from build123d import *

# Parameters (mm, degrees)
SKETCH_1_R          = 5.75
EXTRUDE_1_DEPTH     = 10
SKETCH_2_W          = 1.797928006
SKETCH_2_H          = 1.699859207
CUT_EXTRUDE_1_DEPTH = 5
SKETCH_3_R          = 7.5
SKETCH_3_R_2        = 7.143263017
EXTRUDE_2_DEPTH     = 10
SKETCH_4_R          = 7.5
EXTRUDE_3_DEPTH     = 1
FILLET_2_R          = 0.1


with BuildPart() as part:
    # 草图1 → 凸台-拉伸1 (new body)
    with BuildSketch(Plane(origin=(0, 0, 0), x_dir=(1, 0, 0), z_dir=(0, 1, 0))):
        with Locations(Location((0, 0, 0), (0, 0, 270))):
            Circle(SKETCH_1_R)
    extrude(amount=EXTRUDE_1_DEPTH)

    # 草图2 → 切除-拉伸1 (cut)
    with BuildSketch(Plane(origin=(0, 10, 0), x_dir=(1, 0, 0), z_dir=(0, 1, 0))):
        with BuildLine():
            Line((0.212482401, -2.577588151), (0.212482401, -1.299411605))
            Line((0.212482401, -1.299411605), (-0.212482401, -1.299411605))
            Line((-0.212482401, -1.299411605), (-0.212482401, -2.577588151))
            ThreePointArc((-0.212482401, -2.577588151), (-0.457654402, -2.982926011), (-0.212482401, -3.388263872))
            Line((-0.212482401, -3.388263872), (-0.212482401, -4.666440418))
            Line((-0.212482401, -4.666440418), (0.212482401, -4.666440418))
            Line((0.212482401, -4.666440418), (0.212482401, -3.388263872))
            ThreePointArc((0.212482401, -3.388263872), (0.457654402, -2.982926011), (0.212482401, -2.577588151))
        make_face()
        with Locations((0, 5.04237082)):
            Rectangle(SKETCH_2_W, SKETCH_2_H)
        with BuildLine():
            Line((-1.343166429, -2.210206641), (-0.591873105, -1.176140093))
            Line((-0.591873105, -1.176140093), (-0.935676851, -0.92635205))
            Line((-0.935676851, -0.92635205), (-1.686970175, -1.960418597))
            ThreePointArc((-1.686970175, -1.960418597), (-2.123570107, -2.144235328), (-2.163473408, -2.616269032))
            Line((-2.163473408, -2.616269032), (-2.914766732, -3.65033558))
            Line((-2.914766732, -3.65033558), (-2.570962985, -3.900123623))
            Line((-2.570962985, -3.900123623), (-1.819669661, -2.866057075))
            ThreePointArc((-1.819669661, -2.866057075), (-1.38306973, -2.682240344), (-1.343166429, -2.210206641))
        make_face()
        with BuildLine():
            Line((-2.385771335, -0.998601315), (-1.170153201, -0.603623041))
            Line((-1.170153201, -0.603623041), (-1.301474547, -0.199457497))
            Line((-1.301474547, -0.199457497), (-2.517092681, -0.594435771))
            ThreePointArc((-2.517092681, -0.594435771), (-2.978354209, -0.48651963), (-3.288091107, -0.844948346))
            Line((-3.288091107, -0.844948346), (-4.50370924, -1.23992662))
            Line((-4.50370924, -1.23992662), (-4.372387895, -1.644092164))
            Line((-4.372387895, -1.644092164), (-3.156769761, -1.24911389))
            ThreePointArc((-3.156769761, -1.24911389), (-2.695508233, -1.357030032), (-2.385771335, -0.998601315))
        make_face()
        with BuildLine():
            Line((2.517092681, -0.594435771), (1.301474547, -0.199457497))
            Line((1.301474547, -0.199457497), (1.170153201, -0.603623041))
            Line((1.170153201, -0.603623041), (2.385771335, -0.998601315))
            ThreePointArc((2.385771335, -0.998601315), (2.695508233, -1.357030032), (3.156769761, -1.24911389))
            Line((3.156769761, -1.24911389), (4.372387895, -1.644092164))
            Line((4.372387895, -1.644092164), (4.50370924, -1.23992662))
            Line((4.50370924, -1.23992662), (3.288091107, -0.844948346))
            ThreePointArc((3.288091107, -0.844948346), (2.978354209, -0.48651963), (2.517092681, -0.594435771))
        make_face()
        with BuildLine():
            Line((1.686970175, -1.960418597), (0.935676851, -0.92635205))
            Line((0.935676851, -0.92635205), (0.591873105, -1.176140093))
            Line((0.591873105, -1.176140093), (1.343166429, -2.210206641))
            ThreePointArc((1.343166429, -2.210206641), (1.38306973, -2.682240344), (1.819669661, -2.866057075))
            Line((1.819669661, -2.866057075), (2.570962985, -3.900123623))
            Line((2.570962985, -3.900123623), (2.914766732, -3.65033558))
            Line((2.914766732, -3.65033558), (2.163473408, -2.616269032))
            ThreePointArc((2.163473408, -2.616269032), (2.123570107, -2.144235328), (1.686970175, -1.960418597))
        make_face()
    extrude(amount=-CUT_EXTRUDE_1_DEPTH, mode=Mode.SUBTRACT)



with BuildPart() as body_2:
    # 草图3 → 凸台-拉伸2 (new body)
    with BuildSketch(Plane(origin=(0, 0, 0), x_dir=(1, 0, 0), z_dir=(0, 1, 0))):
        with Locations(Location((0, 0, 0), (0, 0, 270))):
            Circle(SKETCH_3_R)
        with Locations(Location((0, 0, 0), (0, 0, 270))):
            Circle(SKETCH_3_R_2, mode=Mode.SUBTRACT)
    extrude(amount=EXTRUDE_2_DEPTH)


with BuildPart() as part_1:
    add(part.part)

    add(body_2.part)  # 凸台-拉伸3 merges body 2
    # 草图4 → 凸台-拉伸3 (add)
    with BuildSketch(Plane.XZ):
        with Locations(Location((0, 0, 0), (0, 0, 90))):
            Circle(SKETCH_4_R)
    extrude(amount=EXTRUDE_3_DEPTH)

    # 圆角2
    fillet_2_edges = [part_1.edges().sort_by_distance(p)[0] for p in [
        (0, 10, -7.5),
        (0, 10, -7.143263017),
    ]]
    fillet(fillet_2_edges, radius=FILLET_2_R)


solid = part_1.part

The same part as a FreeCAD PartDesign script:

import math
import FreeCAD as App
import Part
import Sketcher
Q = App.Units.Quantity


def edges_at(feature, points):
    """Names of the edges that pass closest to the given points."""
    edges = feature.Shape.Edges
    near = lambda p: min(range(len(edges)), key=lambda i: edges[i].distToShape(Part.Vertex(*p))[0])
    return sorted({f"Edge{near(p) + 1}" for p in points})


def add_polygon(sketch, points):
    """Adds a closed chain of lines whose ends are joined by coincident constraints."""
    first, n = sketch.GeometryCount, len(points)
    for a, b in zip(points, points[1:] + points[:1]):
        sketch.addGeometry(Part.LineSegment(App.Vector(*a, 0), App.Vector(*b, 0)), False)
    for i in range(n):
        sketch.addConstraint(Sketcher.Constraint("Coincident", first + i, 2, first + (i + 1) % n, 1))

doc = App.newDocument("Part")
body = doc.addObject("PartDesign::Body", "Body")

sketch1 = body.newObject("Sketcher::SketchObject", "Sketch")
sketch1.AttachmentSupport = (doc.getObject("XZ_Plane"), [""])
sketch1.MapMode = "FlatFace"
sketch1.addGeometry(Part.Circle(App.Vector(0, 0, 0), App.Vector(0, 0, 1), 6), False)
sketch1.addConstraint([
    Sketcher.Constraint("Coincident", 0, 3, -1, 1),
    Sketcher.Constraint("Diameter", 0, 11.5),
])
pad1 = body.newObject("PartDesign::Pad", "Pad")
pad1.Profile = sketch1
pad1.Length = 10
pad1.Reversed = True

sketch2 = body.newObject("Sketcher::SketchObject", "Sketch001")
sketch2.AttachmentSupport = (doc.getObject("XZ_Plane"), [""])
sketch2.MapMode = "FlatFace"
sketch2.AttachmentOffset = App.Placement(App.Vector(0, 0, -10), App.Rotation())
sketch2.addGeometry(Part.LineSegment(App.Vector(0.21, 2.58, 0), App.Vector(0.21, 1.3, 0)), False)
sketch2.addGeometry(Part.LineSegment(App.Vector(0.21, 1.3, 0), App.Vector(-0.21, 1.3, 0)), False)
sketch2.addGeometry(Part.LineSegment(App.Vector(-0.21, 1.3, 0), App.Vector(-0.21, 2.58, 0)), False)
sketch2.addGeometry(Part.ArcOfCircle(Part.Circle(App.Vector(0, 2.98, 0), App.Vector(0, 0, 1), 0.46), math.radians(118), math.radians(242)), False)
sketch2.addGeometry(Part.LineSegment(App.Vector(-0.21, 3.39, 0), App.Vector(-0.21, 4.67, 0)), False)
sketch2.addGeometry(Part.LineSegment(App.Vector(-0.21, 4.67, 0), App.Vector(0.21, 4.67, 0)), False)
sketch2.addGeometry(Part.LineSegment(App.Vector(0.21, 4.67, 0), App.Vector(0.21, 3.39, 0)), False)
sketch2.addGeometry(Part.ArcOfCircle(Part.Circle(App.Vector(0, 2.98, 0), App.Vector(0, 0, 1), 0.46), math.radians(-62), math.radians(62)), False)
add_polygon(sketch2, [(-0.9, -5.89), (-0.9, -4.19), (0.9, -4.19), (0.9, -5.89)])
sketch2.addGeometry(Part.LineSegment(App.Vector(-1.34, 2.21, 0), App.Vector(-0.59, 1.18, 0)), False)
sketch2.addGeometry(Part.LineSegment(App.Vector(-0.59, 1.18, 0), App.Vector(-0.94, 0.93, 0)), False)
sketch2.addGeometry(Part.LineSegment(App.Vector(-0.94, 0.93, 0), App.Vector(-1.69, 1.96, 0)), False)
sketch2.addGeometry(Part.ArcOfCircle(Part.Circle(App.Vector(-1.75, 2.41, 0), App.Vector(0, 0, 1), 0.46), math.radians(154), math.radians(278)), False)
sketch2.addGeometry(Part.LineSegment(App.Vector(-2.16, 2.62, 0), App.Vector(-2.91, 3.65, 0)), False)
sketch2.addGeometry(Part.LineSegment(App.Vector(-2.91, 3.65, 0), App.Vector(-2.57, 3.9, 0)), False)
sketch2.addGeometry(Part.LineSegment(App.Vector(-2.57, 3.9, 0), App.Vector(-1.82, 2.87, 0)), False)
sketch2.addGeometry(Part.ArcOfCircle(Part.Circle(App.Vector(-1.75, 2.41, 0), App.Vector(0, 0, 1), 0.46), math.radians(-26), math.radians(98)), False)
sketch2.addGeometry(Part.LineSegment(App.Vector(-2.39, 1, 0), App.Vector(-1.17, 0.6, 0)), False)
sketch2.addGeometry(Part.LineSegment(App.Vector(-1.17, 0.6, 0), App.Vector(-1.3, 0.2, 0)), False)
sketch2.addGeometry(Part.LineSegment(App.Vector(-1.3, 0.2, 0), App.Vector(-2.52, 0.59, 0)), False)
sketch2.addGeometry(Part.ArcOfCircle(Part.Circle(App.Vector(-2.84, 0.92, 0), App.Vector(0, 0, 1), 0.46), math.radians(-170), math.radians(-46)), False)
sketch2.addGeometry(Part.LineSegment(App.Vector(-3.29, 0.84, 0), App.Vector(-4.5, 1.24, 0)), False)
sketch2.addGeometry(Part.LineSegment(App.Vector(-4.5, 1.24, 0), App.Vector(-4.37, 1.64, 0)), False)
sketch2.addGeometry(Part.LineSegment(App.Vector(-4.37, 1.64, 0), App.Vector(-3.16, 1.25, 0)), False)
sketch2.addGeometry(Part.ArcOfCircle(Part.Circle(App.Vector(-2.84, 0.92, 0), App.Vector(0, 0, 1), 0.46), math.radians(10), math.radians(134)), False)
sketch2.addGeometry(Part.LineSegment(App.Vector(2.52, 0.59, 0), App.Vector(1.3, 0.2, 0)), False)
sketch2.addGeometry(Part.LineSegment(App.Vector(1.3, 0.2, 0), App.Vector(1.17, 0.6, 0)), False)
sketch2.addGeometry(Part.LineSegment(App.Vector(1.17, 0.6, 0), App.Vector(2.39, 1, 0)), False)
sketch2.addGeometry(Part.ArcOfCircle(Part.Circle(App.Vector(2.84, 0.92, 0), App.Vector(0, 0, 1), 0.46), math.radians(46), math.radians(170)), False)
sketch2.addGeometry(Part.LineSegment(App.Vector(3.16, 1.25, 0), App.Vector(4.37, 1.64, 0)), False)
sketch2.addGeometry(Part.LineSegment(App.Vector(4.37, 1.64, 0), App.Vector(4.5, 1.24, 0)), False)
sketch2.addGeometry(Part.LineSegment(App.Vector(4.5, 1.24, 0), App.Vector(3.29, 0.84, 0)), False)
sketch2.addGeometry(Part.ArcOfCircle(Part.Circle(App.Vector(2.84, 0.92, 0), App.Vector(0, 0, 1), 0.46), math.radians(-134), math.radians(-10)), False)
sketch2.addGeometry(Part.LineSegment(App.Vector(1.69, 1.96, 0), App.Vector(0.94, 0.93, 0)), False)
sketch2.addGeometry(Part.LineSegment(App.Vector(0.94, 0.93, 0), App.Vector(0.59, 1.18, 0)), False)
sketch2.addGeometry(Part.LineSegment(App.Vector(0.59, 1.18, 0), App.Vector(1.34, 2.21, 0)), False)
sketch2.addGeometry(Part.ArcOfCircle(Part.Circle(App.Vector(1.75, 2.41, 0), App.Vector(0, 0, 1), 0.46), math.radians(82), math.radians(206)), False)
sketch2.addGeometry(Part.LineSegment(App.Vector(1.82, 2.87, 0), App.Vector(2.57, 3.9, 0)), False)
sketch2.addGeometry(Part.LineSegment(App.Vector(2.57, 3.9, 0), App.Vector(2.91, 3.65, 0)), False)
sketch2.addGeometry(Part.LineSegment(App.Vector(2.91, 3.65, 0), App.Vector(2.16, 2.62, 0)), False)
sketch2.addGeometry(Part.ArcOfCircle(Part.Circle(App.Vector(1.75, 2.41, 0), App.Vector(0, 0, 1), 0.46), math.radians(-98), math.radians(26)), False)
sketch2.addConstraint([
    Sketcher.Constraint("Coincident", 0, 2, 1, 1),
    Sketcher.Constraint("Coincident", 1, 2, 2, 1),
    Sketcher.Constraint("Coincident", 2, 2, 3, 2),
    Sketcher.Constraint("Coincident", 3, 1, 4, 1),
    Sketcher.Constraint("Coincident", 4, 2, 5, 1),
    Sketcher.Constraint("Coincident", 5, 2, 6, 1),
    Sketcher.Constraint("Coincident", 6, 2, 7, 2),
    Sketcher.Constraint("Coincident", 7, 1, 0, 1),
    Sketcher.Constraint("Coincident", 12, 2, 13, 1),
    Sketcher.Constraint("Coincident", 13, 2, 14, 1),
    Sketcher.Constraint("Coincident", 14, 2, 15, 2),
    Sketcher.Constraint("Coincident", 15, 1, 16, 1),
    Sketcher.Constraint("Coincident", 16, 2, 17, 1),
    Sketcher.Constraint("Coincident", 17, 2, 18, 1),
    Sketcher.Constraint("Coincident", 18, 2, 19, 2),
    Sketcher.Constraint("Coincident", 19, 1, 12, 1),
    Sketcher.Constraint("Coincident", 20, 2, 21, 1),
    Sketcher.Constraint("Coincident", 21, 2, 22, 1),
    Sketcher.Constraint("Coincident", 22, 2, 23, 2),
    Sketcher.Constraint("Coincident", 23, 1, 24, 1),
    Sketcher.Constraint("Coincident", 24, 2, 25, 1),
    Sketcher.Constraint("Coincident", 25, 2, 26, 1),
    Sketcher.Constraint("Coincident", 26, 2, 27, 2),
    Sketcher.Constraint("Coincident", 27, 1, 20, 1),
    Sketcher.Constraint("Coincident", 28, 2, 29, 1),
    Sketcher.Constraint("Coincident", 29, 2, 30, 1),
    Sketcher.Constraint("Coincident", 30, 2, 31, 2),
    Sketcher.Constraint("Coincident", 31, 1, 32, 1),
    Sketcher.Constraint("Coincident", 32, 2, 33, 1),
    Sketcher.Constraint("Coincident", 33, 2, 34, 1),
    Sketcher.Constraint("Coincident", 34, 2, 35, 2),
    Sketcher.Constraint("Coincident", 35, 1, 28, 1),
    Sketcher.Constraint("Coincident", 36, 2, 37, 1),
    Sketcher.Constraint("Coincident", 37, 2, 38, 1),
    Sketcher.Constraint("Coincident", 38, 2, 39, 2),
    Sketcher.Constraint("Coincident", 39, 1, 40, 1),
    Sketcher.Constraint("Coincident", 40, 2, 41, 1),
    Sketcher.Constraint("Coincident", 41, 2, 42, 1),
    Sketcher.Constraint("Coincident", 42, 2, 43, 2),
    Sketcher.Constraint("Coincident", 43, 1, 36, 1),
    Sketcher.Constraint("Vertical", 0),
    Sketcher.Constraint("Horizontal", 1),
    Sketcher.Constraint("Vertical", 2),
    Sketcher.Constraint("Vertical", 4),
    Sketcher.Constraint("Horizontal", 5),
    Sketcher.Constraint("Vertical", 6),
    Sketcher.Constraint("Vertical", 8),
    Sketcher.Constraint("Horizontal", 9),
    Sketcher.Constraint("Vertical", 10),
    Sketcher.Constraint("Horizontal", 11),
    Sketcher.Constraint("Coincident", 7, 3, 3, 3),
    Sketcher.Constraint("Coincident", 19, 3, 15, 3),
    Sketcher.Constraint("Coincident", 27, 3, 23, 3),
    Sketcher.Constraint("Coincident", 35, 3, 31, 3),
    Sketcher.Constraint("Coincident", 43, 3, 39, 3),
    Sketcher.Constraint("Equal", 3, 7),
    Sketcher.Constraint("Equal", 7, 15),
    Sketcher.Constraint("Equal", 15, 19),
    Sketcher.Constraint("Equal", 19, 23),
    Sketcher.Constraint("Equal", 23, 27),
    Sketcher.Constraint("Equal", 27, 31),
    Sketcher.Constraint("Equal", 31, 35),
    Sketcher.Constraint("Equal", 35, 39),
    Sketcher.Constraint("Equal", 39, 43),
    Sketcher.Constraint("Symmetric", 23, 3, 31, 3, -2),
    Sketcher.Constraint("Symmetric", 15, 3, 39, 3, -2),
    Sketcher.Constraint("Symmetric", 3, 1, 6, 2, -2),
    Sketcher.Constraint("Symmetric", 21, 2, 28, 2, -2),
    Sketcher.Constraint("Symmetric", 20, 2, 29, 2, -2),
    Sketcher.Constraint("Symmetric", 25, 2, 32, 2, -2),
    Sketcher.Constraint("Symmetric", 24, 2, 33, 2, -2),
    Sketcher.Constraint("Symmetric", 13, 2, 36, 2, -2),
    Sketcher.Constraint("Symmetric", 12, 2, 37, 2, -2),
    Sketcher.Constraint("Symmetric", 17, 2, 40, 2, -2),
    Sketcher.Constraint("Symmetric", 16, 2, 41, 2, -2),
    Sketcher.Constraint("Perpendicular", 12, 13),
    Sketcher.Constraint("Perpendicular", 13, 14),
    Sketcher.Constraint("Parallel", 14, 16),
    Sketcher.Constraint("Perpendicular", 16, 17),
    Sketcher.Constraint("Perpendicular", 17, 18),
    Sketcher.Constraint("Perpendicular", 20, 21),
    Sketcher.Constraint("Perpendicular", 21, 22),
    Sketcher.Constraint("Parallel", 22, 24),
    Sketcher.Constraint("Perpendicular", 24, 25),
    Sketcher.Constraint("Perpendicular", 25, 26),
    Sketcher.Constraint("Perpendicular", 28, 29),
    Sketcher.Constraint("Perpendicular", 29, 30),
    Sketcher.Constraint("Parallel", 30, 32),
    Sketcher.Constraint("Perpendicular", 33, 34),
    Sketcher.Constraint("Perpendicular", 36, 37),
    Sketcher.Constraint("Perpendicular", 37, 38),
    Sketcher.Constraint("Parallel", 38, 40),
    Sketcher.Constraint("Perpendicular", 41, 42),
    Sketcher.Constraint("Horizontal", 2, 2, 7, 1),
    Sketcher.Constraint("Vertical", 2, 2, 3, 1),
    Sketcher.Constraint("Equal", 2, 4),
    Sketcher.Constraint("Equal", 12, 14),
    Sketcher.Constraint("Equal", 14, 16),
    Sketcher.Constraint("Equal", 13, 17),
    Sketcher.Constraint("Equal", 16, 18),
    Sketcher.Constraint("Equal", 18, 20),
    Sketcher.Constraint("Equal", 17, 21),
    Sketcher.Constraint("Equal", 20, 22),
    Sketcher.Constraint("Equal", 22, 24),
    Sketcher.Constraint("Equal", 21, 25),
    Sketcher.Constraint("Equal", 24, 26),
    Sketcher.Constraint("Angle", 12, Q("-54 deg")),
    Sketcher.Constraint("Angle", 20, Q("-18 deg")),
    Sketcher.Constraint("Radius", 3, 0.457654),
    Sketcher.Constraint("DistanceX", 23, 1, 22, 2, 0.770998),
    Sketcher.Constraint("DistanceX", 9, 1, 9, 2, 1.797928),
    Sketcher.Constraint("DistanceY", 8, 1, 8, 2, 1.699859),
    Sketcher.Constraint("DistanceY", 10, 2, -1, 1, 5.8923),
    Sketcher.Constraint("DistanceY", -1, 1, 27, 1, 0.998601),
    Sketcher.Constraint("DistanceX", 21, 2, 12, 2, 0.709601),
    Sketcher.Constraint("DistanceX", 38, 2, 41, 2, 1.5716),
    Sketcher.Constraint("DistanceX", 1, 2, 1, 1, 0.424965),
    Sketcher.Constraint("DistanceY", 0, 2, 0, 1, 1.278177),
    Sketcher.Constraint("DistanceX", 15, 3, -1, 1, 1.75332),
    Sketcher.Constraint("DistanceY", -1, 1, 0, 2, 1.299412),
    Sketcher.Constraint("DistanceY", -1, 1, 12, 2, 1.17614),
    Sketcher.Constraint("DistanceX", 8, 2, 1, 2, 0.686482),
])
pocket1 = body.newObject("PartDesign::Pocket", "Pocket")
pocket1.Profile = sketch2
pocket1.Length = 5
pocket1.Reversed = True
body2 = doc.addObject("PartDesign::Body", "Body001")

sketch3 = body2.newObject("Sketcher::SketchObject", "Sketch002")
sketch3.AttachmentSupport = (doc.getObject("XZ_Plane001"), [""])
sketch3.MapMode = "FlatFace"
sketch3.addGeometry([
    Part.Circle(App.Vector(0, 0, 0), App.Vector(0, 0, 1), 8),
    Part.Circle(App.Vector(0, 0, 0), App.Vector(0, 0, 1), 7),
], False)
sketch3.addConstraint([
    Sketcher.Constraint("Coincident", 0, 3, -1, 1),
    Sketcher.Constraint("Coincident", 1, 3, -1, 1),
    Sketcher.Constraint("Diameter", 0, 15.0),
    Sketcher.Constraint("Diameter", 1, 14.286526),
])
pad2 = body2.newObject("PartDesign::Pad", "Pad001")
pad2.Profile = sketch3
pad2.Length = 10
pad2.Reversed = True
body.AllowCompound = True
doc.recompute()

boolean = body.newObject("PartDesign::Boolean", "Boolean")
boolean.Type = "Fuse"
boolean.addObjects([body2])

sketch4 = body.newObject("Sketcher::SketchObject", "Sketch003")
sketch4.AttachmentSupport = (doc.getObject("XZ_Plane"), [""])
sketch4.MapMode = "FlatFace"
sketch4.addGeometry(Part.Circle(App.Vector(0, 0, 0), App.Vector(0, 0, 1), 8), False)
sketch4.addConstraint([
    Sketcher.Constraint("Coincident", 0, 3, -1, 1),
    Sketcher.Constraint("Diameter", 0, 15.0),
])
pad3 = body.newObject("PartDesign::Pad", "Pad002")
pad3.Profile = sketch4
pad3.Length = 1
doc.recompute()

fillet = body.newObject("PartDesign::Fillet", "Fillet")
fillet.Base = (pad3, edges_at(pad3, [(0, 10, -7.5), (0, 10, -7.143)]))
fillet.Radius = 0.1

doc.recompute()
